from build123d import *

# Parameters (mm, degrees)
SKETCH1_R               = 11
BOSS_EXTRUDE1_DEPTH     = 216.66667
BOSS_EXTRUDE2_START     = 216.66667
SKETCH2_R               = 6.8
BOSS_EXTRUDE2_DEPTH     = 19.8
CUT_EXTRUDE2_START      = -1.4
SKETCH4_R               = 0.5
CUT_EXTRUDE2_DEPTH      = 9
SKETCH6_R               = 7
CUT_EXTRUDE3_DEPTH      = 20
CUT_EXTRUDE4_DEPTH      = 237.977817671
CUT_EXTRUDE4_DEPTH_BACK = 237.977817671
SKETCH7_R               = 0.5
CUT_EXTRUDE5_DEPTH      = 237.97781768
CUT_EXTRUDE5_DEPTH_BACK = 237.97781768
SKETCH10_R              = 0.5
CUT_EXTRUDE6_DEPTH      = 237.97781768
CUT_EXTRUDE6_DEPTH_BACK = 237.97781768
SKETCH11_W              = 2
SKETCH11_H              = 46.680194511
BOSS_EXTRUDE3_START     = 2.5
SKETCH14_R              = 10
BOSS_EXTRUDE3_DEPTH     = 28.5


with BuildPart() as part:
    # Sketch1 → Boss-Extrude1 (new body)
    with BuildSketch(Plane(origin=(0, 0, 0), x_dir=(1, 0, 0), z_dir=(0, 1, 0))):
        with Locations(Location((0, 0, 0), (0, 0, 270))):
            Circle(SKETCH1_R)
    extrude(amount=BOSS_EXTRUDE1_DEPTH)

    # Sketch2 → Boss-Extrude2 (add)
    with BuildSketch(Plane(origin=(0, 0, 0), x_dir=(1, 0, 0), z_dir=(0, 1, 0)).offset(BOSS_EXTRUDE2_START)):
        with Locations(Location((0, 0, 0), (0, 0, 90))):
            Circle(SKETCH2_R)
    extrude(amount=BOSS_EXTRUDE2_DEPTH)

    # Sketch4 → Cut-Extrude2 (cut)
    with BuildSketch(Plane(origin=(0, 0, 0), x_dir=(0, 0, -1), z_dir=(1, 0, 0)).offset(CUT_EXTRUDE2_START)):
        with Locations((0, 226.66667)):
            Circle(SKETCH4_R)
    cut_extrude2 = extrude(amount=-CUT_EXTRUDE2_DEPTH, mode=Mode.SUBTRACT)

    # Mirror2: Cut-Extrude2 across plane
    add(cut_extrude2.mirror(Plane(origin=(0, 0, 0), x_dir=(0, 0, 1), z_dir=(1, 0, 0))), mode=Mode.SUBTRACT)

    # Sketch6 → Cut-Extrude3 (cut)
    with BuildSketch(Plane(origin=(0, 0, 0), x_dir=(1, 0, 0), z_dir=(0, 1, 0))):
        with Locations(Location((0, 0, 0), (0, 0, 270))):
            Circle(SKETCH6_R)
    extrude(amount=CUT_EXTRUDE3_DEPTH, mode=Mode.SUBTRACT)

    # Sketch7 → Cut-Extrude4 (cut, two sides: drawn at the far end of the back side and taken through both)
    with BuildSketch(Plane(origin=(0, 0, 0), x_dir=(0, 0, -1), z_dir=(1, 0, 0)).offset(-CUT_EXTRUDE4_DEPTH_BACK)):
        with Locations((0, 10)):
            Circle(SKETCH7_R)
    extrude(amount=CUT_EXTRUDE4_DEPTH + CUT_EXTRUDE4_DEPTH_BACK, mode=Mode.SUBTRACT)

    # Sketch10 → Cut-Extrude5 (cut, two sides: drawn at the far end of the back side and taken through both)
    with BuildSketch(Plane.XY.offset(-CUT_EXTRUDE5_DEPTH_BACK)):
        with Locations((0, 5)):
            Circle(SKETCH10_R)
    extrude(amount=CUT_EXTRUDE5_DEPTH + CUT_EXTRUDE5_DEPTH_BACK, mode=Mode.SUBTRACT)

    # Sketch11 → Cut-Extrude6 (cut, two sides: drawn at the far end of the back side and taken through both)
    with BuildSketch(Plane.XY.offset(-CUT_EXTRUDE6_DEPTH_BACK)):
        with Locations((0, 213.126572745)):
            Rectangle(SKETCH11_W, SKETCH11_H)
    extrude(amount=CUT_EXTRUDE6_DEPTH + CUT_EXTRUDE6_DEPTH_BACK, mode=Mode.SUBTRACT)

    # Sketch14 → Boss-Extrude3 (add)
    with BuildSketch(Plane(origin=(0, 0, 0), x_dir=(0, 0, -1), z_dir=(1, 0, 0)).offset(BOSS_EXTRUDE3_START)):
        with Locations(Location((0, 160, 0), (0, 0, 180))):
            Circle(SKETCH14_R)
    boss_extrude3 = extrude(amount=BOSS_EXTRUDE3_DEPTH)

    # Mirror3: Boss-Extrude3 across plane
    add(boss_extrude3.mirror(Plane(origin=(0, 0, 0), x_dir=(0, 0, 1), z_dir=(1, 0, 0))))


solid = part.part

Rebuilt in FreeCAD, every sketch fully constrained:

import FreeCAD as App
import Part
import Sketcher


def add_polygon(sketch, points):
    """Adds a closed chain of lines whose ends are joined by coincident constraints."""
    first, n = sketch.GeometryCount, len(points)
    for a, b in zip(points, points[1:] + points[:1]):
        sketch.addGeometry(Part.LineSegment(App.Vector(*a, 0), App.Vector(*b, 0)), False)
    for i in range(n):
        sketch.addConstraint(Sketcher.Constraint("Coincident", first + i, 2, first + (i + 1) % n, 1))

doc = App.newDocument("Part")
body = doc.addObject("PartDesign::Body", "Body")

# Sketch on XZ plane
sketch1 = doc.addObject("Sketcher::SketchObject", "Sketch")
body.addObject(sketch1)
sketch1.AttachmentSupport = (doc.XZ_Plane, [""])
sketch1.MapMode = "FlatFace"
sketch1.addGeometry(Part.Circle(App.Vector(0, 0, 0), App.Vector(0, 0, 1), 11), False)
sketch1.addConstraint([
    Sketcher.Constraint("Coincident", 0, 3, -1, 1),
    Sketcher.Constraint("Diameter", 0, 22.0),
])
pad1 = doc.addObject("PartDesign::Pad", "Pad")
body.addObject(pad1)
pad1.Profile = sketch1
pad1.Length = 216.66667
pad1.Reversed = True

# Sketch on XZ plane
sketch2 = doc.addObject("Sketcher::SketchObject", "Sketch001")
body.addObject(sketch2)
sketch2.AttachmentSupport = (doc.XZ_Plane, [""])
sketch2.MapMode = "FlatFace"
sketch2.AttachmentOffset = App.Placement(App.Vector(0, 0, -216.66667), App.Rotation())
sketch2.addGeometry(Part.Circle(App.Vector(0, 0, 0), App.Vector(0, 0, 1), 7), False)
sketch2.addConstraint([
    Sketcher.Constraint("Coincident", 0, 3, -1, 1),
    Sketcher.Constraint("Diameter", 0, 13.6),
])
pad2 = doc.addObject("PartDesign::Pad", "Pad001")
body.addObject(pad2)
pad2.Profile = sketch2
pad2.Length = 19.8
pad2.Reversed = True

# Sketch on YZ plane
sketch3 = doc.addObject("Sketcher::SketchObject", "Sketch002")
body.addObject(sketch3)
sketch3.AttachmentSupport = (doc.YZ_Plane, [""])
sketch3.MapMode = "FlatFace"
sketch3.AttachmentOffset = App.Placement(App.Vector(0, 0, -1.4), App.Rotation())
sketch3.addGeometry(Part.Circle(App.Vector(226.7, 0, 0), App.Vector(0, 0, 1), 0.5), False)
sketch3.addConstraint([
    Sketcher.Constraint("PointOnObject", 0, 3, -1),
    Sketcher.Constraint("Diameter", 0, 1.0),
    Sketcher.Constraint("DistanceX", -1, 1, 0, 3, 226.66667),
])
pocket1 = doc.addObject("PartDesign::Pocket", "Pocket")
body.addObject(pocket1)
pocket1.Profile = sketch3
pocket1.Length = 9
doc.recompute()

mirrored = doc.addObject("PartDesign::Mirrored", "Mirrored")
body.addObject(mirrored)
mirrored.Originals = [pocket1]
mirrored.MirrorPlane = (doc.YZ_Plane, [""])
body.Tip = mirrored

# Sketch on XZ plane
sketch4 = doc.addObject("Sketcher::SketchObject", "Sketch003")
body.addObject(sketch4)
sketch4.AttachmentSupport = (doc.XZ_Plane, [""])
sketch4.MapMode = "FlatFace"
sketch4.addGeometry(Part.Circle(App.Vector(0, 0, 0), App.Vector(0, 0, 1), 7), False)
sketch4.addConstraint([
    Sketcher.Constraint("Coincident", 0, 3, -1, 1),
    Sketcher.Constraint("Diameter", 0, 14.0),
])
pocket2 = doc.addObject("PartDesign::Pocket", "Pocket001")
body.addObject(pocket2)
pocket2.Profile = sketch4
pocket2.Length = 20

# Sketch on YZ plane
sketch5 = doc.addObject("Sketcher::SketchObject", "Sketch004")
body.addObject(sketch5)
sketch5.AttachmentSupport = (doc.YZ_Plane, [""])
sketch5.MapMode = "FlatFace"
sketch5.addGeometry(Part.Circle(App.Vector(10, 0, 0), App.Vector(0, 0, 1), 0.5), False)
sketch5.addConstraint([
    Sketcher.Constraint("PointOnObject", 0, 3, -1),
    Sketcher.Constraint("Diameter", 0, 1.0),
    Sketcher.Constraint("DistanceX", -1, 1, 0, 3, 10.0),
])
pocket3 = doc.addObject("PartDesign::Pocket", "Pocket002")
body.addObject(pocket3)
pocket3.Profile = sketch5
pocket3.Type = "ThroughAll"
pocket3.Midplane = True

# Sketch on XY plane
sketch6 = doc.addObject("Sketcher::SketchObject", "Sketch005")
body.addObject(sketch6)
sketch6.AttachmentSupport = (doc.XY_Plane, [""])
sketch6.MapMode = "FlatFace"
sketch6.addGeometry(Part.Circle(App.Vector(0, 5, 0), App.Vector(0, 0, 1), 0.5), False)
sketch6.addConstraint([
    Sketcher.Constraint("PointOnObject", 0, 3, -2),
    Sketcher.Constraint("Diameter", 0, 1.0),
    Sketcher.Constraint("DistanceY", -1, 1, 0, 3, 5.0),
])
pocket4 = doc.addObject("PartDesign::Pocket", "Pocket003")
body.addObject(pocket4)
pocket4.Profile = sketch6
pocket4.Type = "ThroughAll"
pocket4.Midplane = True

# Sketch on XY plane
sketch7 = doc.addObject("Sketcher::SketchObject", "Sketch006")
body.addObject(sketch7)
sketch7.AttachmentSupport = (doc.XY_Plane, [""])
sketch7.MapMode = "FlatFace"
add_polygon(sketch7, [(-1, 236.5), (-1, 189.8), (1, 189.8), (1, 236.5)])  # lines 0-3
sketch7.addConstraint([
    Sketcher.Constraint("Vertical", 0),
    Sketcher.Constraint("Horizontal", 1),
    Sketcher.Constraint("Vertical", 2),
    Sketcher.Constraint("Horizontal", 3),
    Sketcher.Constraint("DistanceX", 1, 1, 1, 2, 2.0),
    Sketcher.Constraint("DistanceX", 0, 2, -1, 1, 1.0),
    Sketcher.Constraint("DistanceY", 0, 2, 0, 1, 46.680195),
    Sketcher.Constraint("DistanceY", -1, 1, 2, 2, 236.46667),
])
pocket5 = doc.addObject("PartDesign::Pocket", "Pocket004")
body.addObject(pocket5)
pocket5.Profile = sketch7
pocket5.Type = "ThroughAll"
pocket5.Midplane = True

# Sketch on YZ plane
sketch8 = doc.addObject("Sketcher::SketchObject", "Sketch007")
body.addObject(sketch8)
sketch8.AttachmentSupport = (doc.YZ_Plane, [""])
sketch8.MapMode = "FlatFace"
sketch8.AttachmentOffset = App.Placement(App.Vector(0, 0, 2.5), App.Rotation())
sketch8.addGeometry(Part.Circle(App.Vector(160, 0, 0), App.Vector(0, 0, 1), 10), False)
sketch8.addConstraint([
    Sketcher.Constraint("PointOnObject", 0, 3, -1),
    Sketcher.Constraint("Diameter", 0, 20.0),
    Sketcher.Constraint("DistanceX", -1, 1, 0, 3, 160.0),
])
pad3 = doc.addObject("PartDesign::Pad", "Pad002")
body.addObject(pad3)
pad3.Profile = sketch8
pad3.Length = 28.5
doc.recompute()

mirrored2 = doc.addObject("PartDesign::Mirrored", "Mirrored001")
body.addObject(mirrored2)
mirrored2.Originals = [pad3]
mirrored2.MirrorPlane = (doc.YZ_Plane, [""])
body.Tip = mirrored2

doc.recompute()
